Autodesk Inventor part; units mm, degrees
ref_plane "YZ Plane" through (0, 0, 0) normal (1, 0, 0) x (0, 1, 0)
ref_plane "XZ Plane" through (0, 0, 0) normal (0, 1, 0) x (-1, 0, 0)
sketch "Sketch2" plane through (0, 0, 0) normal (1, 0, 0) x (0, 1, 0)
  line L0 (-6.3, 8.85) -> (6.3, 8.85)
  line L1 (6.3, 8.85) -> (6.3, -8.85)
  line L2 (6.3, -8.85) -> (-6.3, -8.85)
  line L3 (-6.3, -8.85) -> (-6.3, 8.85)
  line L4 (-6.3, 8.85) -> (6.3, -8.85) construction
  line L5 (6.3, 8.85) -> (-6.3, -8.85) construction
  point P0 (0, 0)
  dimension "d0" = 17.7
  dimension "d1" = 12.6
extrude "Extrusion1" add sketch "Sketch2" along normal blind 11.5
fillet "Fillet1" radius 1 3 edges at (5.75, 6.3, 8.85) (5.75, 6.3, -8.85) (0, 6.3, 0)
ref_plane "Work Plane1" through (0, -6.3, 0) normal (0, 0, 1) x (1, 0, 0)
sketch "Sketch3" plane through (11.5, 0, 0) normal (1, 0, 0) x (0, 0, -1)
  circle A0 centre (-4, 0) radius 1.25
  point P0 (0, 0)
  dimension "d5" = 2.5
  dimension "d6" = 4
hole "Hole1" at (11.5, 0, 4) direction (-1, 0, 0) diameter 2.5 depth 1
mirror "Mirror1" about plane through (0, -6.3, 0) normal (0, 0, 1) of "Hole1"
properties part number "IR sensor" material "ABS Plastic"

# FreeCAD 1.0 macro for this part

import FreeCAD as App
import Part
import Sketcher
from FreeCAD import Vector


def edges_at(feature, points):
    """Names of the edges that pass closest to the given points."""
    edges = feature.Shape.Edges
    near = lambda p: min(range(len(edges)), key=lambda i: edges[i].distToShape(Part.Vertex(*p))[0])
    return sorted({f"Edge{near(p) + 1}" for p in points})

doc = App.newDocument("Part")
body = doc.addObject("PartDesign::Body", "Body")

# Sketch on YZ plane
sketch1 = body.newObject("Sketcher::SketchObject", "Sketch")
sketch1.AttachmentSupport = (doc.getObject("YZ_Plane"), [""])
sketch1.MapMode = "FlatFace"
sketch1.addGeometry(Part.LineSegment(Vector(6, 9, 0), Vector(-6, 9, 0)), False)
sketch1.addGeometry(Part.LineSegment(Vector(-6, 9, 0), Vector(-6, -9, 0)), False)
sketch1.addGeometry(Part.LineSegment(Vector(-6, -9, 0), Vector(6, -9, 0)), False)
sketch1.addGeometry(Part.LineSegment(Vector(6, -9, 0), Vector(6, 9, 0)), False)
sketch1.addConstraint(Sketcher.Constraint("Coincident", 0, 2, 1, 1))
sketch1.addConstraint(Sketcher.Constraint("Coincident", 1, 2, 2, 1))
sketch1.addConstraint(Sketcher.Constraint("Coincident", 2, 2, 3, 1))
sketch1.addConstraint(Sketcher.Constraint("Coincident", 3, 2, 0, 1))
sketch1.addConstraint(Sketcher.Constraint("Horizontal", 0))
sketch1.addConstraint(Sketcher.Constraint("Vertical", 1))
sketch1.addConstraint(Sketcher.Constraint("Horizontal", 2))
sketch1.addConstraint(Sketcher.Constraint("Vertical", 3))
sketch1.addConstraint(Sketcher.Constraint("Symmetric", 0, 2, 2, 2, -1, 1))
sketch1.addConstraint(Sketcher.Constraint("DistanceX", 0, 2, 0, 1, 12.6))
sketch1.addConstraint(Sketcher.Constraint("DistanceY", 1, 2, 1, 1, 17.7))
pad1 = body.newObject("PartDesign::Pad", "Pad")
pad1.Profile = sketch1
pad1.Length = 11.5
doc.recompute()

fillet = body.newObject("PartDesign::Fillet", "Fillet")
fillet.Base = (pad1, edges_at(pad1, [(5.75, 6.3, 8.85), (5.75, 6.3, -8.85), (0, 6.3, 0)]))
fillet.Radius = 1

# Sketch on YZ plane
sketch2 = body.newObject("Sketcher::SketchObject", "Sketch001")
sketch2.AttachmentSupport = (doc.getObject("YZ_Plane"), [""])
sketch2.MapMode = "FlatFace"
sketch2.AttachmentOffset = App.Placement(Vector(0, 0, 11.5), App.Rotation())
sketch2.addGeometry(Part.Circle(Vector(0, 4, 0), Vector(0, 0, 1), 1.2), False)
sketch2.addConstraint(Sketcher.Constraint("PointOnObject", 0, 3, -2))
sketch2.addConstraint(Sketcher.Constraint("Diameter", 0, 2.5))
sketch2.addConstraint(Sketcher.Constraint("DistanceY", -1, 1, 0, 3, 4.0))
doc.recompute()
hole = body.newObject("PartDesign::Hole", "Hole")
hole.Profile = sketch2
hole.ThreadType = "None"
hole.Diameter = 2.5
hole.DepthType = "Dimension"
hole.Depth = 1
hole.DrillPoint = "Flat"
doc.recompute()

mirrored = body.newObject("PartDesign::Mirrored", "Mirrored")
mirrored.Originals = [hole]
mirrored.MirrorPlane = (doc.getObject("XY_Plane"), [""])
body.Tip = mirrored

doc.recompute()
